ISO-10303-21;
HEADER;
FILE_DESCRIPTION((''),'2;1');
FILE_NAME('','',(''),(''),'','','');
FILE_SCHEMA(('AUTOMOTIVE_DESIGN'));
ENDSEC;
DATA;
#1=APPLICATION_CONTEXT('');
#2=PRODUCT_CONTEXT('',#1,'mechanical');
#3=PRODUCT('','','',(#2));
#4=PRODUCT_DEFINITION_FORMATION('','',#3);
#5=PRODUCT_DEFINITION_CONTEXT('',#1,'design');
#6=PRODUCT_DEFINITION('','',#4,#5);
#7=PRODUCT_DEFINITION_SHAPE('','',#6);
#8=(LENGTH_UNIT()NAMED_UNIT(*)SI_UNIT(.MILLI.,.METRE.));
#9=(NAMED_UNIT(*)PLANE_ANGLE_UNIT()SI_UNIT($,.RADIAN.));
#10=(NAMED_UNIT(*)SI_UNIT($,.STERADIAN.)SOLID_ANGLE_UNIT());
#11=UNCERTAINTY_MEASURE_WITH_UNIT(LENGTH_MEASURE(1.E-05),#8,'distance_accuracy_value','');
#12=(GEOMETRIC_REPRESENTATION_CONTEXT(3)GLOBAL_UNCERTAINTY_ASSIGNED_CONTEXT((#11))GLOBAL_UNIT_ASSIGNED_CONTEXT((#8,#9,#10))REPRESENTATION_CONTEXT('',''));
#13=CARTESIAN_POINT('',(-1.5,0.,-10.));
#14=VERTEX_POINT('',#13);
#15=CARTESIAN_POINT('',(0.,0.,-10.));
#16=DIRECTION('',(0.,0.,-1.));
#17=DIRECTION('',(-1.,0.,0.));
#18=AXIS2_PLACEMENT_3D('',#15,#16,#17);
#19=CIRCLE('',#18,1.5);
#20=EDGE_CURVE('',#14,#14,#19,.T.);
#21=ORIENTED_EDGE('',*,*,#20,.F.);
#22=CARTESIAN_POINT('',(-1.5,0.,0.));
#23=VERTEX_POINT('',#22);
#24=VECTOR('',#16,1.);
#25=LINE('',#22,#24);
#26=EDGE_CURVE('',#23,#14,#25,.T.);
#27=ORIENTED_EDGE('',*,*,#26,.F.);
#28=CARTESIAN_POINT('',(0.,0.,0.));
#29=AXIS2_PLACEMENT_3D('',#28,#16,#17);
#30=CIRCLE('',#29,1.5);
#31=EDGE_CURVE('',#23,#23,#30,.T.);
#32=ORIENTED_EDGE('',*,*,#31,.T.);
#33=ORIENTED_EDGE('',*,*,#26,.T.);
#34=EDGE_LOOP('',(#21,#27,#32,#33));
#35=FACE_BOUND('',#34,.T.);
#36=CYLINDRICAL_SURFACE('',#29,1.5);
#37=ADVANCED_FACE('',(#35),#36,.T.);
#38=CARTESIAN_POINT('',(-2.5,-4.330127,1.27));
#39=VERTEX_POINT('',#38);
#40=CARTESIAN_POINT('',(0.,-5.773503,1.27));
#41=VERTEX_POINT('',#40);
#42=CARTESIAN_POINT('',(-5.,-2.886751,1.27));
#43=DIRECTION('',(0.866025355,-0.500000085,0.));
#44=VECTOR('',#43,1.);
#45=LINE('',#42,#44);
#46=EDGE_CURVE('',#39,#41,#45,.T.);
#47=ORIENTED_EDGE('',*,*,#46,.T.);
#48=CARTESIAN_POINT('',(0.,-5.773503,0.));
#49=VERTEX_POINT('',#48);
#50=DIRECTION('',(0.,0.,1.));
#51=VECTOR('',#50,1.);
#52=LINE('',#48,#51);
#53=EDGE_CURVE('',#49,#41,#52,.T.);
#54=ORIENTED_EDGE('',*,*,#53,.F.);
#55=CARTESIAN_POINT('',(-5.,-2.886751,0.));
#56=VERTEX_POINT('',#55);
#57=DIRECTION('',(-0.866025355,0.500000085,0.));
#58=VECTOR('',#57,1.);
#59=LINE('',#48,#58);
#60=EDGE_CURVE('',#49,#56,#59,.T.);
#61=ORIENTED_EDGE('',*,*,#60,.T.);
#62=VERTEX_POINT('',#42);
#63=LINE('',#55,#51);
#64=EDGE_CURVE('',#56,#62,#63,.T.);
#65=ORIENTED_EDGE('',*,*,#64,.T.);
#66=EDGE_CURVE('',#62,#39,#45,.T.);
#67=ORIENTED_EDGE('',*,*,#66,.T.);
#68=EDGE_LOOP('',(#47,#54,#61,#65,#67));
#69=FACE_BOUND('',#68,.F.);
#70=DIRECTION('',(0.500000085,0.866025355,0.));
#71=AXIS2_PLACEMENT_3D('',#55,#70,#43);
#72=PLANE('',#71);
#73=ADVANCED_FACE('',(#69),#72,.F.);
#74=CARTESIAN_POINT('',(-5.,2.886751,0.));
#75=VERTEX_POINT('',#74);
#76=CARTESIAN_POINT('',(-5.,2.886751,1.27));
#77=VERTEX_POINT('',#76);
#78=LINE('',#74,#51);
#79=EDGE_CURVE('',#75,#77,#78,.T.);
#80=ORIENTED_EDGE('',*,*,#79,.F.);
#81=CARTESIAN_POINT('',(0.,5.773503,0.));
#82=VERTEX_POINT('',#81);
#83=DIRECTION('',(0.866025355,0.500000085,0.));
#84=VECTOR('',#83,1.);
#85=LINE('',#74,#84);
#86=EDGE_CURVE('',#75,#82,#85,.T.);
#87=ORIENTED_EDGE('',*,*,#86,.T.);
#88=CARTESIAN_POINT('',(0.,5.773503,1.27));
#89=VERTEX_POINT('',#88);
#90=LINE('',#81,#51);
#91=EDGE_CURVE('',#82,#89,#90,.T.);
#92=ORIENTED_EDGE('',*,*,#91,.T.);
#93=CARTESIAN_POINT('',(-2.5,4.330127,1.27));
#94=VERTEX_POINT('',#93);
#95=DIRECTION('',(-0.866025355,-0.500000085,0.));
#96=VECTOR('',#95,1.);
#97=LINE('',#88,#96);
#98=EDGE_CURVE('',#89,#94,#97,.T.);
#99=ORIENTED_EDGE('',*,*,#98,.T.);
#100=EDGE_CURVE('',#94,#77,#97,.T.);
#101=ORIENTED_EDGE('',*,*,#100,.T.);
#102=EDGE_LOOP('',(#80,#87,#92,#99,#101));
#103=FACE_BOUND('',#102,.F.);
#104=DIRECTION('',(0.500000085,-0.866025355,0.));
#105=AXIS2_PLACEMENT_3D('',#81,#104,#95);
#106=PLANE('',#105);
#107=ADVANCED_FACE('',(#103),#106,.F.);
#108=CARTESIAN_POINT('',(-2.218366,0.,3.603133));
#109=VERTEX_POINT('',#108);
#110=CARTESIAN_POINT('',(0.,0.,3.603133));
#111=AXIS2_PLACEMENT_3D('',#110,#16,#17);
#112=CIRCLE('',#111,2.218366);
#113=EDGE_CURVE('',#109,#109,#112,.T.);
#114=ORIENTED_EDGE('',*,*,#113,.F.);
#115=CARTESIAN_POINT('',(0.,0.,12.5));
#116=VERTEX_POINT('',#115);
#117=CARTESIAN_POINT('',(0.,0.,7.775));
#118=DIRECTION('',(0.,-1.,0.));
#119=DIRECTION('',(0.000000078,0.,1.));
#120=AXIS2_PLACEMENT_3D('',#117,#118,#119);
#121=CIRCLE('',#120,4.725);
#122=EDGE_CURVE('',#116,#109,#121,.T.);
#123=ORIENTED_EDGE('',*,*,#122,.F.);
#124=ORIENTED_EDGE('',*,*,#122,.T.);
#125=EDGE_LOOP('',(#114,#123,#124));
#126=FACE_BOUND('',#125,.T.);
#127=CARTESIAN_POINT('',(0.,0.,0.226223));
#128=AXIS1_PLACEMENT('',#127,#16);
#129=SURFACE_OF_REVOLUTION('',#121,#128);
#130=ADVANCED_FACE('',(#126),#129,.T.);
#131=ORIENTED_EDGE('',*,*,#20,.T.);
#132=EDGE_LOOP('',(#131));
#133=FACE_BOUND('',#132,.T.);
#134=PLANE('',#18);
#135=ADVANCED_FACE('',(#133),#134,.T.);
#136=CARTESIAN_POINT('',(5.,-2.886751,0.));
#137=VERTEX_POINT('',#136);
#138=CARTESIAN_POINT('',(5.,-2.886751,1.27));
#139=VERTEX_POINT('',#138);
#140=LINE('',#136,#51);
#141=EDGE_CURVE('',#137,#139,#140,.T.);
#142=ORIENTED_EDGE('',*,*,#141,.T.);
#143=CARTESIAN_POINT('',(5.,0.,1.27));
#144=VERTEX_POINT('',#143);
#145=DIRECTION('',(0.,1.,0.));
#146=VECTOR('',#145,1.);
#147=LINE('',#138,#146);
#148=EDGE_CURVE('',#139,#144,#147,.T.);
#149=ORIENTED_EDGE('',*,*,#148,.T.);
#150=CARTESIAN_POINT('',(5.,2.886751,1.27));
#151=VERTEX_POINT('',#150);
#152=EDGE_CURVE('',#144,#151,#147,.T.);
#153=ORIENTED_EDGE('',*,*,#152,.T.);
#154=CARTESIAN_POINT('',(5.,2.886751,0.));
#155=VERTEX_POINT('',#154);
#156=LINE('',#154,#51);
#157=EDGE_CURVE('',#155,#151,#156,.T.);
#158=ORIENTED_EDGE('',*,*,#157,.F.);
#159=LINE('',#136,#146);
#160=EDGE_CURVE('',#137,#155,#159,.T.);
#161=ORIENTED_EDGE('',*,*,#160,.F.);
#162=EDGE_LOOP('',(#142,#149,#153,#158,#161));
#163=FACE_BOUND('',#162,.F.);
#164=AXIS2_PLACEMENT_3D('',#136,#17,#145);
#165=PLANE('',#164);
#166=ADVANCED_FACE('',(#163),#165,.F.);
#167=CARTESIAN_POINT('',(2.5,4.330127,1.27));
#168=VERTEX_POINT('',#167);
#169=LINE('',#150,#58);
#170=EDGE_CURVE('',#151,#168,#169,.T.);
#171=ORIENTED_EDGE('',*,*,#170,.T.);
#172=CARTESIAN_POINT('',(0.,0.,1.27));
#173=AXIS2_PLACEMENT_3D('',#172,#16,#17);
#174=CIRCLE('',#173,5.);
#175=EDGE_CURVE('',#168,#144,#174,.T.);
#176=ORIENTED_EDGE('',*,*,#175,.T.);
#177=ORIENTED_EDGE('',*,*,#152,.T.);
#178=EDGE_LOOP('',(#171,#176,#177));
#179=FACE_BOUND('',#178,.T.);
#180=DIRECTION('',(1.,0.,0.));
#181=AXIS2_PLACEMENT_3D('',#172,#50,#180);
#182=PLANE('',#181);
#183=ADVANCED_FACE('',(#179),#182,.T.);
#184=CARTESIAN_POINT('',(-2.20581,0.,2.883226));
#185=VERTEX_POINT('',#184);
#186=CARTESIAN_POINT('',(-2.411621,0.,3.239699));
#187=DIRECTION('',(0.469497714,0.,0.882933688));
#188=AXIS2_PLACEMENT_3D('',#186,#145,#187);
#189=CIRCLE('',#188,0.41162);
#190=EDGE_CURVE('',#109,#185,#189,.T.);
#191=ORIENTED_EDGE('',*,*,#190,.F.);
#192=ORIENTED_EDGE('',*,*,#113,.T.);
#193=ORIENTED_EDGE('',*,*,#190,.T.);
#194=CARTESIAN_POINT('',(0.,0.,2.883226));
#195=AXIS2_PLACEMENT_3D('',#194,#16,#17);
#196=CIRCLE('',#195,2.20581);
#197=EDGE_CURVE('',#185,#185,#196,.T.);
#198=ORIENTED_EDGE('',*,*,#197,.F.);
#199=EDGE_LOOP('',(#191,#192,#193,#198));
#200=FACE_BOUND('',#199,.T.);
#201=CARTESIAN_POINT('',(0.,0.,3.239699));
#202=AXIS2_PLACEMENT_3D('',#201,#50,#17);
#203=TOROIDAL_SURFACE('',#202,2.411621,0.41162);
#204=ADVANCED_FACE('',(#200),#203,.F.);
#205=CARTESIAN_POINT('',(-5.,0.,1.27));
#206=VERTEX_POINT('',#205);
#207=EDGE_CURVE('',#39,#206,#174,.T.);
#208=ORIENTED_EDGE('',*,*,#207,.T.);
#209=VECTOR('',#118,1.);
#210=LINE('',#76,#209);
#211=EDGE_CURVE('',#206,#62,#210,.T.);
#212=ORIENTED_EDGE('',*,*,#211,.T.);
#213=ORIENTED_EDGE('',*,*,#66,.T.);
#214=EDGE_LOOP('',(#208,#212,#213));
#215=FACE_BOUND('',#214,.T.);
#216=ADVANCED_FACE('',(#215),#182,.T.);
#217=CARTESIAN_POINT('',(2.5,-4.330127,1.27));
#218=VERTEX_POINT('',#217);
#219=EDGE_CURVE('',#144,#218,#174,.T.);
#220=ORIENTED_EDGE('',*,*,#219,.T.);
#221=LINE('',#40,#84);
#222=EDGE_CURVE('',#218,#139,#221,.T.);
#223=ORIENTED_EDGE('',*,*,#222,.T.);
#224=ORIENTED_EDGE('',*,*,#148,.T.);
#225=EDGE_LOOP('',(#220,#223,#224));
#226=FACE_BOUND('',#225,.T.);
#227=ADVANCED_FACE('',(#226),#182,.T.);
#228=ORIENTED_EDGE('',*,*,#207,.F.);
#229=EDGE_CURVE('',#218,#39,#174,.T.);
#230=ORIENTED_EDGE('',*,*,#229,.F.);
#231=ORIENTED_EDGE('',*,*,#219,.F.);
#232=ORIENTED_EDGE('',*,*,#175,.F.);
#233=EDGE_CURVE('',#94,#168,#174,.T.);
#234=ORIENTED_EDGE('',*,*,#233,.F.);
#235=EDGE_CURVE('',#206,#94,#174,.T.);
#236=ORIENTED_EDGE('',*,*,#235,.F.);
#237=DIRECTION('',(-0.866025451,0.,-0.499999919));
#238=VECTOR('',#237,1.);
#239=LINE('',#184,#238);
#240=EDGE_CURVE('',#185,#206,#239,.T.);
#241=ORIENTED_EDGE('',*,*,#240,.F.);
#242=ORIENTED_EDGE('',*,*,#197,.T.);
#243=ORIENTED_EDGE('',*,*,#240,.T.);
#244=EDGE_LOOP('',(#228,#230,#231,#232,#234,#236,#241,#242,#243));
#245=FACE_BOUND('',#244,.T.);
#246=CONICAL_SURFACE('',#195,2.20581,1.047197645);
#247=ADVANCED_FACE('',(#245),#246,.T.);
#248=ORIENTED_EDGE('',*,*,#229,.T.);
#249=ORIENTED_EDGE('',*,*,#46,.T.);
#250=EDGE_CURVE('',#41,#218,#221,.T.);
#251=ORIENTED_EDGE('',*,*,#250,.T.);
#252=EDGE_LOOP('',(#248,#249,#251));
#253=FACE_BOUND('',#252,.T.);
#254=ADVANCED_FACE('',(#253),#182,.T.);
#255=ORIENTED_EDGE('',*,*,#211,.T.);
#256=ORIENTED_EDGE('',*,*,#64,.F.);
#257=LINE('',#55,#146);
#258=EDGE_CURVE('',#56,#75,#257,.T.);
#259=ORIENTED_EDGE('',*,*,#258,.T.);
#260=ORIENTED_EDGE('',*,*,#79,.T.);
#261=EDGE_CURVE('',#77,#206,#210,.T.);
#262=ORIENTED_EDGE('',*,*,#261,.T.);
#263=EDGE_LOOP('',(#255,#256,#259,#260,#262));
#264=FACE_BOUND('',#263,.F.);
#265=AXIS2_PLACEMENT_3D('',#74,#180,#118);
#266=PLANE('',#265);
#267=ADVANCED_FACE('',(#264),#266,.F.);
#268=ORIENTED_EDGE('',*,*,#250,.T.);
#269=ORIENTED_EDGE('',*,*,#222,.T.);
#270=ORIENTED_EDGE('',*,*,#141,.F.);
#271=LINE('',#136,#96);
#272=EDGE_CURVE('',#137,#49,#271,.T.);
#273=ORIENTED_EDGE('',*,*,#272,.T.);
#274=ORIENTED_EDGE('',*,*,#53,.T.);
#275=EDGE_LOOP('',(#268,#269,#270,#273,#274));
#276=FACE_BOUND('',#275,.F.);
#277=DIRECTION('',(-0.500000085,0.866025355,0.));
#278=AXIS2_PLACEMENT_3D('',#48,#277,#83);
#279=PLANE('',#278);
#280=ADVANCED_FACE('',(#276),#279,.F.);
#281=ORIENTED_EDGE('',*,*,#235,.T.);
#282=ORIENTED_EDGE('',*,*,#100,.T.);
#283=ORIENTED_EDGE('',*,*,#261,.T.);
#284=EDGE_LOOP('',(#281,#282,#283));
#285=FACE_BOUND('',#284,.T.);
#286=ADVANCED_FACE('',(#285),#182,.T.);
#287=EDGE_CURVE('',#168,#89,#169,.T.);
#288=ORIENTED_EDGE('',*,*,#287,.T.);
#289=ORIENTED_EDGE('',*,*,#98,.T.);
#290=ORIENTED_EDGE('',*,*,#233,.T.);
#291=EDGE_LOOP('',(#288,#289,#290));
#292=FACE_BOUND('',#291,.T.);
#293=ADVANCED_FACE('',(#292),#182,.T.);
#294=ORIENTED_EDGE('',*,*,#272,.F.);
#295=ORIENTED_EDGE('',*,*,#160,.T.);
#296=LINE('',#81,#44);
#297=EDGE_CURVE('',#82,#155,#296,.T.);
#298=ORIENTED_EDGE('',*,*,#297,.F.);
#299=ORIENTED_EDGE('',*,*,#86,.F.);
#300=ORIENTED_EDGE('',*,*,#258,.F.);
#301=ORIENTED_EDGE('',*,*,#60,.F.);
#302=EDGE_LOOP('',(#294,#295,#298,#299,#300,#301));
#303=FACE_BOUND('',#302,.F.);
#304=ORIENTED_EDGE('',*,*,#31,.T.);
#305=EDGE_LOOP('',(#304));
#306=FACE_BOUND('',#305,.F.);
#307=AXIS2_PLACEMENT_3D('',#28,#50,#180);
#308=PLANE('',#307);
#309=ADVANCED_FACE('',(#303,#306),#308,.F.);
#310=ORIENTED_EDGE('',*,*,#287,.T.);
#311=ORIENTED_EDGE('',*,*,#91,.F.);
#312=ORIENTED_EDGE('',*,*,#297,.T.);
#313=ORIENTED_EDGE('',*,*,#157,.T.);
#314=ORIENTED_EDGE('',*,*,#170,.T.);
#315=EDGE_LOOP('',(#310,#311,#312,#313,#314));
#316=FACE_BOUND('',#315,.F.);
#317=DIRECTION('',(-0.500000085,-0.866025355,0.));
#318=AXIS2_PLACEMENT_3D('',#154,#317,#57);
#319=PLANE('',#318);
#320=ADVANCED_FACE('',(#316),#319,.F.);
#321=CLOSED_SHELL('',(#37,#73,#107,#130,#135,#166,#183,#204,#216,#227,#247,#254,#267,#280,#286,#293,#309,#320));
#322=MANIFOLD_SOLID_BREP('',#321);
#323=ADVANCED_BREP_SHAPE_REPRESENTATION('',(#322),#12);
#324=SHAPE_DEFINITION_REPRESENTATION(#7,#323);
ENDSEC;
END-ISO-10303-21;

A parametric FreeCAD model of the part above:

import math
import FreeCAD as App
import Part
import Sketcher
from FreeCAD import Vector
Q = App.Units.Quantity

doc = App.newDocument("Part")
body = doc.addObject("PartDesign::Body", "Body")

sketch1 = body.newObject("Sketcher::SketchObject", "Sketch")
sketch1.AttachmentSupport = (doc.getObject("XZ_Plane"), [""])
sketch1.MapMode = "FlatFace"
sketch1.addGeometry(Part.ArcOfCircle(Part.Circle(Vector(0, 7.775, 0), Vector(0, 0, 1), 4.725), math.radians(89.999996), math.radians(241.998453)), False)
sketch1.addGeometry(Part.ArcOfCircle(Part.Circle(Vector(-2.411621, 3.239699, 0), Vector(0, 0, 1), 0.41162), math.radians(-59.999898), math.radians(61.998303)), False)
sketch1.addGeometry(Part.LineSegment(Vector(-2.20581, 2.883226, 0), Vector(-5, 1.27, 0)), False)
sketch1.addGeometry(Part.LineSegment(Vector(-5, 1.27, 0), Vector(-5, 0, 0)), False)
sketch1.addGeometry(Part.LineSegment(Vector(-5, 0, 0), Vector(-1.5, 0, 0)), False)
sketch1.addGeometry(Part.LineSegment(Vector(-1.5, 0, 0), Vector(-1.5, -10, 0)), False)
sketch1.addGeometry(Part.LineSegment(Vector(-1.5, -10, 0), Vector(0, -10, 0)), False)
sketch1.addGeometry(Part.LineSegment(Vector(0, -10, 0), Vector(0, 12.5, 0)), False)
sketch1.addConstraint(Sketcher.Constraint("Coincident", 0, 2, 1, 2))
sketch1.addConstraint(Sketcher.Constraint("Tangent", 1, 1, 2, 1))
sketch1.addConstraint(Sketcher.Constraint("Coincident", 2, 2, 3, 1))
sketch1.addConstraint(Sketcher.Constraint("Coincident", 3, 2, 4, 1))
sketch1.addConstraint(Sketcher.Constraint("Coincident", 4, 2, 5, 1))
sketch1.addConstraint(Sketcher.Constraint("Coincident", 5, 2, 6, 1))
sketch1.addConstraint(Sketcher.Constraint("Coincident", 6, 2, 7, 1))
sketch1.addConstraint(Sketcher.Constraint("Coincident", 7, 2, 0, 1))
sketch1.addConstraint(Sketcher.Constraint("Vertical", 3))
sketch1.addConstraint(Sketcher.Constraint("Horizontal", 4))
sketch1.addConstraint(Sketcher.Constraint("Vertical", 5))
sketch1.addConstraint(Sketcher.Constraint("Horizontal", 6))
sketch1.addConstraint(Sketcher.Constraint("Vertical", 7))
sketch1.addConstraint(Sketcher.Constraint("PointOnObject", 0, 3, -2))
sketch1.addConstraint(Sketcher.Constraint("PointOnObject", 3, 2, -1))
sketch1.addConstraint(Sketcher.Constraint("PointOnObject", 6, 2, -2))
sketch1.addConstraint(Sketcher.Constraint("DistanceY", 5, 2, 5, 1, 10.0))
sketch1.addConstraint(Sketcher.Constraint("Angle", 2, Q("-150.000005 deg")))
sketch1.addConstraint(Sketcher.Constraint("DistanceX", 4, 1, 4, 2, 3.5))
sketch1.addConstraint(Sketcher.Constraint("DistanceX", 6, 1, 6, 2, 1.5))
sketch1.addConstraint(Sketcher.Constraint("DistanceY", 7, 1, 7, 2, 22.5))
sketch1.addConstraint(Sketcher.Constraint("Radius", 0, 4.725))
sketch1.addConstraint(Sketcher.Constraint("DistanceY", 3, 2, 3, 1, 1.27))
sketch1.addConstraint(Sketcher.Constraint("Radius", 1, 0.41162))
sketch1.addConstraint(Sketcher.Constraint("DistanceX", 0, 2, -1, 1, 2.218366))
revolution = body.newObject("PartDesign::Revolution", "Revolution")
revolution.Profile = sketch1
revolution.ReferenceAxis = (sketch1, ["V_Axis"])
revolution.Angle = 360

sketch2 = body.newObject("Sketcher::SketchObject", "Sketch001")
sketch2.AttachmentSupport = (doc.getObject("XY_Plane"), [""])
sketch2.MapMode = "FlatFace"
sketch2.addGeometry(Part.LineSegment(Vector(5, -2.886751, 0), Vector(5, 2.886751, 0)), False)
sketch2.addGeometry(Part.LineSegment(Vector(5, 2.886751, 0), Vector(0, 5.773503, 0)), False)
sketch2.addGeometry(Part.LineSegment(Vector(0, 5.773503, 0), Vector(-5, 2.886751, 0)), False)
sketch2.addGeometry(Part.LineSegment(Vector(-5, 2.886751, 0), Vector(-5, -2.886751, 0)), False)
sketch2.addGeometry(Part.LineSegment(Vector(-5, -2.886751, 0), Vector(0, -5.773503, 0)), False)
sketch2.addGeometry(Part.LineSegment(Vector(0, -5.773503, 0), Vector(5, -2.886751, 0)), False)
sketch2.addConstraint(Sketcher.Constraint("Coincident", 0, 2, 1, 1))
sketch2.addConstraint(Sketcher.Constraint("Coincident", 1, 2, 2, 1))
sketch2.addConstraint(Sketcher.Constraint("Coincident", 2, 2, 3, 1))
sketch2.addConstraint(Sketcher.Constraint("Coincident", 3, 2, 4, 1))
sketch2.addConstraint(Sketcher.Constraint("Coincident", 4, 2, 5, 1))
sketch2.addConstraint(Sketcher.Constraint("Coincident", 5, 2, 0, 1))
sketch2.addConstraint(Sketcher.Constraint("Vertical", 0))
sketch2.addConstraint(Sketcher.Constraint("Vertical", 3))
sketch2.addConstraint(Sketcher.Constraint("Symmetric", 0, 2, 3, 2, -1, 1))
sketch2.addConstraint(Sketcher.Constraint("Symmetric", 1, 2, 4, 2, -1, 1))
sketch2.addConstraint(Sketcher.Constraint("PointOnObject", 1, 2, -2))
sketch2.addConstraint(Sketcher.Constraint("Parallel", 2, 5))
sketch2.addConstraint(Sketcher.Constraint("Horizontal", 0, 2, 2, 2))
sketch2.addConstraint(Sketcher.Constraint("Angle", 1, Q("149.999994 deg")))
sketch2.addConstraint(Sketcher.Constraint("DistanceX", -1, 1, 0, 2, 5.0))
sketch2.addConstraint(Sketcher.Constraint("DistanceY", 0, 1, 0, 2, 5.773502))
pad1 = body.newObject("PartDesign::Pad", "Pad")
pad1.Profile = sketch2
pad1.Length = 1.27

doc.recompute()
